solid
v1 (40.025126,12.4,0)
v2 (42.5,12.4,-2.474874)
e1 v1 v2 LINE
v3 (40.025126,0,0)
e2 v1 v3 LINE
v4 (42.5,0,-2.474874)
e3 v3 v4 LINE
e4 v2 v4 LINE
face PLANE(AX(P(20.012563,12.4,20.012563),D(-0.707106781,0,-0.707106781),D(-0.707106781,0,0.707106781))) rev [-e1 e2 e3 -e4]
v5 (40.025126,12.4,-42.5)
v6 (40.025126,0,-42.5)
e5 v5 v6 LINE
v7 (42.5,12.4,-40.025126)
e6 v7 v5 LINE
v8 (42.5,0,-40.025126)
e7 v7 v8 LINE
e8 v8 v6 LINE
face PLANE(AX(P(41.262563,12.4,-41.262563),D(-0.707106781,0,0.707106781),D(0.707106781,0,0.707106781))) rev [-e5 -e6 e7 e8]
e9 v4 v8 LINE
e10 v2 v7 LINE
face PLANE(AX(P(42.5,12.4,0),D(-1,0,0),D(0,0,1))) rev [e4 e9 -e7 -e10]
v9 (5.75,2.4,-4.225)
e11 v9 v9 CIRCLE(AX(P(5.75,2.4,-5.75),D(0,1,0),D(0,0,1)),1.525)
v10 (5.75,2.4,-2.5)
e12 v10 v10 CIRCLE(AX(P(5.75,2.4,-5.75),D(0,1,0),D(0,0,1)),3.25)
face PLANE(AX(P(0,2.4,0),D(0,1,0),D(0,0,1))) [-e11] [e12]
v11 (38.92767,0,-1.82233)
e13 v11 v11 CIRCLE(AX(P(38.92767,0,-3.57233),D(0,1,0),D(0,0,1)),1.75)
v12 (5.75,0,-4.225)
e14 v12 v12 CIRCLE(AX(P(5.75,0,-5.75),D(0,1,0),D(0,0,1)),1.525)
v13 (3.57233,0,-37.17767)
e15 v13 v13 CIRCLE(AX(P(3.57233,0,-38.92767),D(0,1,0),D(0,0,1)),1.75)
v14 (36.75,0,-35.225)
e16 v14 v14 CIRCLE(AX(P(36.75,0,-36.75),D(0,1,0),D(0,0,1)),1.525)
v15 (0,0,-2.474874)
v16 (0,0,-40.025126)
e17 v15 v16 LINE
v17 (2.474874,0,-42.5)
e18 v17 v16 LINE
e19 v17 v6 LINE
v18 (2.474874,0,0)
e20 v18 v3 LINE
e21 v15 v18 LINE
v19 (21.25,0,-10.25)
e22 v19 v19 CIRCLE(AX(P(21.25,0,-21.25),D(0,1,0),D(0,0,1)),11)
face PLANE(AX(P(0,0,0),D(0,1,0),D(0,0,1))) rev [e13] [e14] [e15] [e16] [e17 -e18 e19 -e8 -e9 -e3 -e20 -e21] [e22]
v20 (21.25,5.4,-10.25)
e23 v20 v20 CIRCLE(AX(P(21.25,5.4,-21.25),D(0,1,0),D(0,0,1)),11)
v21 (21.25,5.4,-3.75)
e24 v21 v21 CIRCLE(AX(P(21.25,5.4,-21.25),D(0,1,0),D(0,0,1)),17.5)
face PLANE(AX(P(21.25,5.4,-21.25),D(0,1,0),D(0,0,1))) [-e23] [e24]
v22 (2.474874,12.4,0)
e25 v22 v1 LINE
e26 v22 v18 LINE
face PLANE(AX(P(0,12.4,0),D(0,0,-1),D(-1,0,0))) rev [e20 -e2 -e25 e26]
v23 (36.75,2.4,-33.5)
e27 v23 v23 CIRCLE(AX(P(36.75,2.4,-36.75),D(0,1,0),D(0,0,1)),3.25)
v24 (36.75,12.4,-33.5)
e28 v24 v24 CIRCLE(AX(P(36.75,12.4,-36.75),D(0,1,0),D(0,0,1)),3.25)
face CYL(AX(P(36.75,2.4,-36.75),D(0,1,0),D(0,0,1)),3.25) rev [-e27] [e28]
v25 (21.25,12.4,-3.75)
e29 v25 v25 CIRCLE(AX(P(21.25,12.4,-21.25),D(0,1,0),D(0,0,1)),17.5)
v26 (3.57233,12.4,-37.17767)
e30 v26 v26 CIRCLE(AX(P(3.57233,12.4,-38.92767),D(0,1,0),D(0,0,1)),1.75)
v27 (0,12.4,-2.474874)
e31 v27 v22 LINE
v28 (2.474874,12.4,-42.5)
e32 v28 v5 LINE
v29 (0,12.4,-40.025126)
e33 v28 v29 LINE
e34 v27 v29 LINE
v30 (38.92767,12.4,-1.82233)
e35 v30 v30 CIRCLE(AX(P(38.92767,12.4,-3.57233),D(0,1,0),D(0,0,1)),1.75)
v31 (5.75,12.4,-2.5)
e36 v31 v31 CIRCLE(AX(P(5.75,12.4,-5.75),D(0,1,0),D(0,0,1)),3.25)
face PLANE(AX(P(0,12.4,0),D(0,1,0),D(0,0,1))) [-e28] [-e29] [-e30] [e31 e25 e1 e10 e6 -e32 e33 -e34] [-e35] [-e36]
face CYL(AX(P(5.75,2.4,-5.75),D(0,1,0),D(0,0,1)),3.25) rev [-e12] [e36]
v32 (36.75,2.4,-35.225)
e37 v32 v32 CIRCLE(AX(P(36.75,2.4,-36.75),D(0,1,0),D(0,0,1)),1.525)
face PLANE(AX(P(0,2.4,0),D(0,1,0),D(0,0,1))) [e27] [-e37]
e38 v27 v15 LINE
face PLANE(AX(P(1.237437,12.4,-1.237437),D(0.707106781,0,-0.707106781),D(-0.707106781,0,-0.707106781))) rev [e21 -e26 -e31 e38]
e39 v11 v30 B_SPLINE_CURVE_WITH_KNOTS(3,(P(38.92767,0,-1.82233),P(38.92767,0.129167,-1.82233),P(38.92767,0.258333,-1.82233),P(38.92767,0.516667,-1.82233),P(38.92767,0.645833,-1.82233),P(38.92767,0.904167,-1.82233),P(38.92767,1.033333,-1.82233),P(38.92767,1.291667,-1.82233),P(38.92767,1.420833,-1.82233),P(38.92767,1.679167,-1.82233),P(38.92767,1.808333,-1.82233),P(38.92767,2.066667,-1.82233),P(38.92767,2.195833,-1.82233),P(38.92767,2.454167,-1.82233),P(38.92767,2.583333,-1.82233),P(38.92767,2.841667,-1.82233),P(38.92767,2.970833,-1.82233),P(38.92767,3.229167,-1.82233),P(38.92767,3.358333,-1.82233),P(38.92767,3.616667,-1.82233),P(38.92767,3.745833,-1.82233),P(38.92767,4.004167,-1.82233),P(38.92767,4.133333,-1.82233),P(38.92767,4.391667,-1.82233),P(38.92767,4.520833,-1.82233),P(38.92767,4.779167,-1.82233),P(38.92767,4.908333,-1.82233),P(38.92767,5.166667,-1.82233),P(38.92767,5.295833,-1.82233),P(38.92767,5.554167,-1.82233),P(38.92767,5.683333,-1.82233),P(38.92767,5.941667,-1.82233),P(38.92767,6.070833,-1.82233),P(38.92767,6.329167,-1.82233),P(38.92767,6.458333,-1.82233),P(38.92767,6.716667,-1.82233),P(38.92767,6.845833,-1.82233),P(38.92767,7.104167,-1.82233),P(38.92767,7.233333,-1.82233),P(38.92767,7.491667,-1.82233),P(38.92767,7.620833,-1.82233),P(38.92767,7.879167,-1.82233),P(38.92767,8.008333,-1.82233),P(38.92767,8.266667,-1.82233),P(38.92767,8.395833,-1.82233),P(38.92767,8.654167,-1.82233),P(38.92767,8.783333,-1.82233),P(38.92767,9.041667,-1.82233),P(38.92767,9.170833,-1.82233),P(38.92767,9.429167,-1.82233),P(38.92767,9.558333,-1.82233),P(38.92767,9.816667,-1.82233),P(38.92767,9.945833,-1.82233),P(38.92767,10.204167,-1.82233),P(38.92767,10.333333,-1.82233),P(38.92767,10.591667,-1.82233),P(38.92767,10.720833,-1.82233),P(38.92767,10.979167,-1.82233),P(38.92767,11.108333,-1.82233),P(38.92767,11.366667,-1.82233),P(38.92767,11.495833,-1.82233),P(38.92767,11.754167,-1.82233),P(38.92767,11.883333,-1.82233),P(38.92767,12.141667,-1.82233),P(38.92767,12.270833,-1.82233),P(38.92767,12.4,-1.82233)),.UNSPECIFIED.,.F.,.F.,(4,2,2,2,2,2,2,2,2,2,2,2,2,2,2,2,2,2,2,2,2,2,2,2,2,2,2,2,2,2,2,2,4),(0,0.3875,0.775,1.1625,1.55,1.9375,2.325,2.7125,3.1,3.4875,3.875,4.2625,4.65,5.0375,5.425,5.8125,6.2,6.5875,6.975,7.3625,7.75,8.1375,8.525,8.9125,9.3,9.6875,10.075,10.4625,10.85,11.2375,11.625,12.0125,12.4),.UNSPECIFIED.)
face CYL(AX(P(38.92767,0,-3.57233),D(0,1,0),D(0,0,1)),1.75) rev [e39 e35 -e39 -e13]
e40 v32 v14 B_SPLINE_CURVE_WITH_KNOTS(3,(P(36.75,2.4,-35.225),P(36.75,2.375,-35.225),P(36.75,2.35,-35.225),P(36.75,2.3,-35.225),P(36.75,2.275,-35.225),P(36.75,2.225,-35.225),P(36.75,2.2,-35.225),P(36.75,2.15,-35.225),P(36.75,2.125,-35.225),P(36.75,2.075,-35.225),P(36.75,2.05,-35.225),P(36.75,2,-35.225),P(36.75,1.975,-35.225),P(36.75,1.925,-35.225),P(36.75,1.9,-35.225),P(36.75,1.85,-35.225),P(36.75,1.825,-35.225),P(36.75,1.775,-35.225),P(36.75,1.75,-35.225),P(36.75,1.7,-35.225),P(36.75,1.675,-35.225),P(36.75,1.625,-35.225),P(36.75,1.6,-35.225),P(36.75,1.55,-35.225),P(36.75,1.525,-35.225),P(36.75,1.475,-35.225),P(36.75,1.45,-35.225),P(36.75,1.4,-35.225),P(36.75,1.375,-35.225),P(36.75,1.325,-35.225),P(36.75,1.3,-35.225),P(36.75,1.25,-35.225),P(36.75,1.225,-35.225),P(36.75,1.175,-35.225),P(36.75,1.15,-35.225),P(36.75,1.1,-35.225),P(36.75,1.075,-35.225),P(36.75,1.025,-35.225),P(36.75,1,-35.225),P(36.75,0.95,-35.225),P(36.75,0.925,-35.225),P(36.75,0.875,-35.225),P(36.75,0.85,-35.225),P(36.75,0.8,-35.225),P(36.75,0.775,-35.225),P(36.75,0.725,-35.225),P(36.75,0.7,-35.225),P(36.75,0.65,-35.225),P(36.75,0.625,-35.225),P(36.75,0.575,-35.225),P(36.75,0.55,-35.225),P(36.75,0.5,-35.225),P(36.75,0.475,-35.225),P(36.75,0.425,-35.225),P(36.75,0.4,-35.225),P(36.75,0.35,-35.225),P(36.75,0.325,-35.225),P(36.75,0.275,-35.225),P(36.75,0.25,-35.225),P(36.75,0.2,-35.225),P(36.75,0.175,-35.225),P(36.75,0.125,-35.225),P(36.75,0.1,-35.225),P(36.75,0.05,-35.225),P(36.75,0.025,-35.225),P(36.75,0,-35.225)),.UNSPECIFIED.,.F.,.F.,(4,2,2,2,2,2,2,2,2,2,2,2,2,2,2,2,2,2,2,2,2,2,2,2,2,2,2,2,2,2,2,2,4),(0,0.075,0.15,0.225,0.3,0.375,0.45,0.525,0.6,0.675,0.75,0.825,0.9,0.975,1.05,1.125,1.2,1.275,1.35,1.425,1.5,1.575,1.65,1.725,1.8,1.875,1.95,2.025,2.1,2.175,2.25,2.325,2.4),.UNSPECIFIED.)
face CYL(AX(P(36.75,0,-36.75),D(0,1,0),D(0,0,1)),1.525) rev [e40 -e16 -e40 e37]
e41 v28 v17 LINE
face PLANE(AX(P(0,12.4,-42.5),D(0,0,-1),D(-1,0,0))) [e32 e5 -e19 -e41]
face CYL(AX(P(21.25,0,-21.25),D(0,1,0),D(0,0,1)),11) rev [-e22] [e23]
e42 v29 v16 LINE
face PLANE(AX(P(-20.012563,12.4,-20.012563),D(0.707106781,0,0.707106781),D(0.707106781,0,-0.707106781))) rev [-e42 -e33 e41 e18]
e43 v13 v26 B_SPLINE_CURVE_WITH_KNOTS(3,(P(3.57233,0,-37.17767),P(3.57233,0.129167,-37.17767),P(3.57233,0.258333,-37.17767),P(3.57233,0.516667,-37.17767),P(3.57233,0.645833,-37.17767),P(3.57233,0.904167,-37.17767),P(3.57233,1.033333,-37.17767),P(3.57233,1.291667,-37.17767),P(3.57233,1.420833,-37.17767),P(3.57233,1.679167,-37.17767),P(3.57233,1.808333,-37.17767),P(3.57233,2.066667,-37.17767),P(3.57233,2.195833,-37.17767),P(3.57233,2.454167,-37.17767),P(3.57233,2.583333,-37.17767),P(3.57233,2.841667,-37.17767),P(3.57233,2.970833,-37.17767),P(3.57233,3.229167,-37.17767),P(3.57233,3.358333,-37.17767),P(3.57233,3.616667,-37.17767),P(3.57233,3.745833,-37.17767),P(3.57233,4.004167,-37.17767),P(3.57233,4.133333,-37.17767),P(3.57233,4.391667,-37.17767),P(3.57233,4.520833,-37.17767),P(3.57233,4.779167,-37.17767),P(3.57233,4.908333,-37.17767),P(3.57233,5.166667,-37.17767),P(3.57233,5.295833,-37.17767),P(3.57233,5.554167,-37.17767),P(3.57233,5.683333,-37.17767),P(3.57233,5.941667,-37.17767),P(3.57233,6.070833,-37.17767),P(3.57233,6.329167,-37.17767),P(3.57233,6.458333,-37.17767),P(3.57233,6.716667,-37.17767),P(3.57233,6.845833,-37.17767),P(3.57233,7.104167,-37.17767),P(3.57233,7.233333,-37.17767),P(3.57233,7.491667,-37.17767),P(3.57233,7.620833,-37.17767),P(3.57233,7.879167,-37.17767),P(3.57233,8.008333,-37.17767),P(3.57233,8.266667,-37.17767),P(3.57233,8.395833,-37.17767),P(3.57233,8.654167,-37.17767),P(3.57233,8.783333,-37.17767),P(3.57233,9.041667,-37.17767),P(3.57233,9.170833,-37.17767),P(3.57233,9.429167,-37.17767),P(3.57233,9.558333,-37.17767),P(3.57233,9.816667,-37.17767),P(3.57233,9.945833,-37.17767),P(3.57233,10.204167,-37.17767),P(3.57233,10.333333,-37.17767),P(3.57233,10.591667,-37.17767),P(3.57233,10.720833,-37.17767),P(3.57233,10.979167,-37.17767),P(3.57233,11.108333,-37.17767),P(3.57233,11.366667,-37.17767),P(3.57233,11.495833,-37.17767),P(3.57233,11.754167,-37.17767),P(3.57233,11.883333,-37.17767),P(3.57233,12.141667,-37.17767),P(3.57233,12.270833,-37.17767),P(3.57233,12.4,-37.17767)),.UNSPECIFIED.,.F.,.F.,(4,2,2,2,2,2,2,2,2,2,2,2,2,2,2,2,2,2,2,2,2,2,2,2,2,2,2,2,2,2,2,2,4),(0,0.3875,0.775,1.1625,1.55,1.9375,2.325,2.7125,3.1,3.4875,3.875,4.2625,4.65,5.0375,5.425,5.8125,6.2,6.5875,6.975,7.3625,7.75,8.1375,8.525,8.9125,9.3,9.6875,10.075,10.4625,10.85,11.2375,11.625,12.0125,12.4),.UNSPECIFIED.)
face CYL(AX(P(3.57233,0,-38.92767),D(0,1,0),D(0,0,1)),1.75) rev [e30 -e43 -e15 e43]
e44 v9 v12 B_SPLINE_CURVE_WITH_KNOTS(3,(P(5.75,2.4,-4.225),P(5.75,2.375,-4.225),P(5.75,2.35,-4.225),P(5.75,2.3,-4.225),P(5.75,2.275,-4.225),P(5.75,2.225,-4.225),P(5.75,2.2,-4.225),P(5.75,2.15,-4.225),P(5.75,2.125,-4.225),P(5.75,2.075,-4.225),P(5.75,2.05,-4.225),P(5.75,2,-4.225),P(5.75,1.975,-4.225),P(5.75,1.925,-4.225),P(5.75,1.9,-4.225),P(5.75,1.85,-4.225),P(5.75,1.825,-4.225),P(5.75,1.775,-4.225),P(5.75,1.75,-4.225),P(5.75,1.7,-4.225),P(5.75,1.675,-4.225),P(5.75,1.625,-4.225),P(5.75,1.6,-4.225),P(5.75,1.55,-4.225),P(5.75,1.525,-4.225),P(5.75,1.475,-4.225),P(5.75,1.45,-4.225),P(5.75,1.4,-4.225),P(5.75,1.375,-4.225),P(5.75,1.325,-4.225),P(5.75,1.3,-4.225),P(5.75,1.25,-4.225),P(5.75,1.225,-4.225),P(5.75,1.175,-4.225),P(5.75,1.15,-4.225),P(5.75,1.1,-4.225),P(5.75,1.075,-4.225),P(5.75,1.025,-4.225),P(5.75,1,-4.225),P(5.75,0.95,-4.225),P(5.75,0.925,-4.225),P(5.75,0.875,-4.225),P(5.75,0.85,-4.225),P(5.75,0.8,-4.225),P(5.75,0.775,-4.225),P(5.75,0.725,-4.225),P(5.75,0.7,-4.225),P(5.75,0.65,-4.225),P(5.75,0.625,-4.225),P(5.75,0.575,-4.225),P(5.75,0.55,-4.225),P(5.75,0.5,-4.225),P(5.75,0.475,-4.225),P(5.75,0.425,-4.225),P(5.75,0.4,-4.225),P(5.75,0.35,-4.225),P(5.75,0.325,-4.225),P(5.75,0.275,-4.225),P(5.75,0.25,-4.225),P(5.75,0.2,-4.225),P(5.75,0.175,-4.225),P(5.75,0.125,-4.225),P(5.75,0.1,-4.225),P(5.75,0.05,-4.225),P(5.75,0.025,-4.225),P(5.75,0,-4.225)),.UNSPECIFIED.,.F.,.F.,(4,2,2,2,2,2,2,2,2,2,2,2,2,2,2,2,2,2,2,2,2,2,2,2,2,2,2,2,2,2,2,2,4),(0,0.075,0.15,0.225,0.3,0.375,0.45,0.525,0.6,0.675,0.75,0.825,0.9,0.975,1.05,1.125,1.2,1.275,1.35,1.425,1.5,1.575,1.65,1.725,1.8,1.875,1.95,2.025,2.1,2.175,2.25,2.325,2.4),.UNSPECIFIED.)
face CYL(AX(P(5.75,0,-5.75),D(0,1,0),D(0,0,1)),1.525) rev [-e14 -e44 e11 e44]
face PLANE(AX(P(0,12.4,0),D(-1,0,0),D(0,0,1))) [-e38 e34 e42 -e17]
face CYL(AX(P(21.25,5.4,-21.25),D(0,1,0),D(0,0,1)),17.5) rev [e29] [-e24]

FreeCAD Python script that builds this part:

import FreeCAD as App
import Part
import Sketcher
Q = App.Units.Quantity


def add_polygon(sketch, points):
    """Adds a closed chain of lines whose ends are joined by coincident constraints."""
    first, n = sketch.GeometryCount, len(points)
    for a, b in zip(points, points[1:] + points[:1]):
        sketch.addGeometry(Part.LineSegment(App.Vector(*a, 0), App.Vector(*b, 0)), False)
    for i in range(n):
        sketch.addConstraint(Sketcher.Constraint("Coincident", first + i, 2, first + (i + 1) % n, 1))

doc = App.newDocument("Part")
params = doc.addObject("Spreadsheet::Sheet", "Params")
for row, (alias, value) in enumerate([
    ("sketch1_length", "3.5 mm"),
    ("pad1_length", "12.4 mm"),
    ("sketch2_diameter", "35 mm"),
    ("pocket1_length", "7 mm"),
    ("sketch3_diameter", "22 mm"),
    ("sketch4_diameter", "6.5 mm"),
    ("pocket3_length", "10 mm"),
    ("sketch5_diameter", "3.5 mm"),
    ("sketch5_diameter2", "3.05 mm"),
], start=1):
    params.set(f"A{row}", alias)
    params.set(f"B{row}", "=" + value)
    params.setAlias(f"B{row}", alias)

body = doc.addObject("PartDesign::Body", "Body")

# Sketch on XZ plane
sketch1 = doc.addObject("Sketcher::SketchObject", "Sketch")
body.addObject(sketch1)
sketch1.AttachmentSupport = (doc.XZ_Plane, [""])
sketch1.MapMode = "FlatFace"
add_polygon(sketch1, [(0, -40), (0, -2.5), (2.5, 0), (40, 0), (42.5, -2.5), (42.5, -40), (40, -42.5), (2.5, -42.5)])  # lines 0-7
sketch1.addConstraint([
    Sketcher.Constraint("Vertical", 0),
    Sketcher.Constraint("Horizontal", 2),
    Sketcher.Constraint("Vertical", 4),
    Sketcher.Constraint("Horizontal", 6),
    Sketcher.Constraint("PointOnObject", 0, 2, -2),
    Sketcher.Constraint("PointOnObject", 1, 2, -1),
    Sketcher.Constraint("Perpendicular", 1, 3),
    Sketcher.Constraint("Perpendicular", 3, 5),
    Sketcher.Constraint("Perpendicular", 5, 7),
    Sketcher.Constraint("Horizontal", 0, 2, 3, 2),
    Sketcher.Constraint("Horizontal", 4, 2, 7, 2),
    Sketcher.Constraint("Vertical", 2, 2, 5, 2),
    Sketcher.Constraint("Vertical", 1, 2, 6, 2),
    Sketcher.Constraint("Equal", 6, 0),
    Sketcher.Constraint("Distance", 1, Q("3.5 mm")),
    Sketcher.Constraint("DistanceX", -1, 1, 3, 2, Q("42.5 mm")),
])
sketch1.setExpression("Constraints[22]", "Params.sketch1_length")
pad1 = doc.addObject("PartDesign::Pad", "Pad")
body.addObject(pad1)
pad1.Profile = sketch1
pad1.setExpression("Length", "Params.pad1_length")
pad1.Reversed = True

# Sketch on XZ plane
sketch2 = doc.addObject("Sketcher::SketchObject", "Sketch001")
body.addObject(sketch2)
sketch2.AttachmentSupport = (doc.XZ_Plane, [""])
sketch2.MapMode = "FlatFace"
sketch2.AttachmentOffset = App.Placement(App.Vector(0, 0, -12.4), App.Rotation())
sketch2.addGeometry(Part.Circle(App.Vector(21, -21, 0), App.Vector(0, 0, 1), 18), False)
sketch2.addConstraint([
    Sketcher.Constraint("Diameter", 0, Q("35 mm")),
    Sketcher.Constraint("DistanceX", -1, 1, 0, 3, Q("21.25 mm")),
    Sketcher.Constraint("DistanceY", 0, 3, -1, 1, Q("21.25 mm")),
])
sketch2.setExpression("Constraints[0]", "Params.sketch2_diameter")
pocket1 = doc.addObject("PartDesign::Pocket", "Pocket")
body.addObject(pocket1)
pocket1.Profile = sketch2
pocket1.setExpression("Length", "Params.pocket1_length")
pocket1.Reversed = True

# Sketch on XZ plane
sketch3 = doc.addObject("Sketcher::SketchObject", "Sketch002")
body.addObject(sketch3)
sketch3.AttachmentSupport = (doc.XZ_Plane, [""])
sketch3.MapMode = "FlatFace"
sketch3.AttachmentOffset = App.Placement(App.Vector(0, 0, -5.4), App.Rotation())
sketch3.addGeometry(Part.Circle(App.Vector(21, -21, 0), App.Vector(0, 0, 1), 11), False)
sketch3.addConstraint([
    Sketcher.Constraint("Diameter", 0, Q("22 mm")),
    Sketcher.Constraint("DistanceX", -1, 1, 0, 3, Q("21.25 mm")),
    Sketcher.Constraint("DistanceY", 0, 3, -1, 1, Q("21.25 mm")),
])
sketch3.setExpression("Constraints[0]", "Params.sketch3_diameter")
pocket2 = doc.addObject("PartDesign::Pocket", "Pocket001")
body.addObject(pocket2)
pocket2.Profile = sketch3
pocket2.Type = "ThroughAll"
pocket2.Reversed = True

# Sketch on XZ plane
sketch4 = doc.addObject("Sketcher::SketchObject", "Sketch003")
body.addObject(sketch4)
sketch4.AttachmentSupport = (doc.XZ_Plane, [""])
sketch4.MapMode = "FlatFace"
sketch4.AttachmentOffset = App.Placement(App.Vector(0, 0, -12.4), App.Rotation())
sketch4.addGeometry([
    Part.Circle(App.Vector(5.8, -5.8, 0), App.Vector(0, 0, 1), 3.2),
    Part.Circle(App.Vector(36.8, -36.8, 0), App.Vector(0, 0, 1), 3.2),
], False)
sketch4.addConstraint([
    Sketcher.Constraint("Equal", 0, 1),
    Sketcher.Constraint("Diameter", 0, Q("6.5 mm")),
    Sketcher.Constraint("DistanceX", 0, 3, 1, 3, Q("31 mm")),
    Sketcher.Constraint("DistanceY", 1, 3, 0, 3, Q("31 mm")),
    Sketcher.Constraint("DistanceX", -1, 1, 0, 3, Q("5.75 mm")),
    Sketcher.Constraint("DistanceY", 0, 3, -1, 1, Q("5.75 mm")),
])
sketch4.setExpression("Constraints[1]", "Params.sketch4_diameter")
pocket3 = doc.addObject("PartDesign::Pocket", "Pocket002")
body.addObject(pocket3)
pocket3.Profile = sketch4
pocket3.setExpression("Length", "Params.pocket3_length")
pocket3.Reversed = True

# Sketch on XZ plane
sketch5 = doc.addObject("Sketcher::SketchObject", "Sketch004")
body.addObject(sketch5)
sketch5.AttachmentSupport = (doc.XZ_Plane, [""])
sketch5.MapMode = "FlatFace"
sketch5.AttachmentOffset = App.Placement(App.Vector(0, 0, -12.4), App.Rotation())
sketch5.addGeometry([
    Part.Circle(App.Vector(5.8, -5.8, 0), App.Vector(0, 0, 1), 1.5),
    Part.Circle(App.Vector(38.9, -3.6, 0), App.Vector(0, 0, 1), 1.8),
    Part.Circle(App.Vector(36.8, -36.8, 0), App.Vector(0, 0, 1), 1.5),
    Part.Circle(App.Vector(3.6, -38.9, 0), App.Vector(0, 0, 1), 1.8),
], False)
sketch5.addConstraint([
    Sketcher.Constraint("Equal", 0, 2),
    Sketcher.Constraint("Equal", 1, 3),
    Sketcher.Constraint("Diameter", 1, Q("3.5 mm")),
    Sketcher.Constraint("Diameter", 0, Q("3.05 mm")),
    Sketcher.Constraint("DistanceX", 0, 3, 2, 3, Q("31 mm")),
    Sketcher.Constraint("DistanceY", 2, 3, 0, 3, Q("31 mm")),
    Sketcher.Constraint("DistanceX", -1, 1, 0, 3, Q("5.75 mm")),
    Sketcher.Constraint("DistanceY", 0, 3, -1, 1, Q("5.75 mm")),
    Sketcher.Constraint("DistanceX", -1, 1, 1, 3, Q("38.92767 mm")),
    Sketcher.Constraint("DistanceY", 1, 3, -1, 1, Q("3.57233 mm")),
    Sketcher.Constraint("DistanceX", -1, 1, 3, 3, Q("3.57233 mm")),
    Sketcher.Constraint("DistanceY", 3, 3, -1, 1, Q("38.92767 mm")),
])
sketch5.setExpression("Constraints[2]", "Params.sketch5_diameter")
sketch5.setExpression("Constraints[3]", "Params.sketch5_diameter2")
pocket4 = doc.addObject("PartDesign::Pocket", "Pocket003")
body.addObject(pocket4)
pocket4.Profile = sketch5
pocket4.Type = "ThroughAll"
pocket4.Reversed = True

doc.recompute()
